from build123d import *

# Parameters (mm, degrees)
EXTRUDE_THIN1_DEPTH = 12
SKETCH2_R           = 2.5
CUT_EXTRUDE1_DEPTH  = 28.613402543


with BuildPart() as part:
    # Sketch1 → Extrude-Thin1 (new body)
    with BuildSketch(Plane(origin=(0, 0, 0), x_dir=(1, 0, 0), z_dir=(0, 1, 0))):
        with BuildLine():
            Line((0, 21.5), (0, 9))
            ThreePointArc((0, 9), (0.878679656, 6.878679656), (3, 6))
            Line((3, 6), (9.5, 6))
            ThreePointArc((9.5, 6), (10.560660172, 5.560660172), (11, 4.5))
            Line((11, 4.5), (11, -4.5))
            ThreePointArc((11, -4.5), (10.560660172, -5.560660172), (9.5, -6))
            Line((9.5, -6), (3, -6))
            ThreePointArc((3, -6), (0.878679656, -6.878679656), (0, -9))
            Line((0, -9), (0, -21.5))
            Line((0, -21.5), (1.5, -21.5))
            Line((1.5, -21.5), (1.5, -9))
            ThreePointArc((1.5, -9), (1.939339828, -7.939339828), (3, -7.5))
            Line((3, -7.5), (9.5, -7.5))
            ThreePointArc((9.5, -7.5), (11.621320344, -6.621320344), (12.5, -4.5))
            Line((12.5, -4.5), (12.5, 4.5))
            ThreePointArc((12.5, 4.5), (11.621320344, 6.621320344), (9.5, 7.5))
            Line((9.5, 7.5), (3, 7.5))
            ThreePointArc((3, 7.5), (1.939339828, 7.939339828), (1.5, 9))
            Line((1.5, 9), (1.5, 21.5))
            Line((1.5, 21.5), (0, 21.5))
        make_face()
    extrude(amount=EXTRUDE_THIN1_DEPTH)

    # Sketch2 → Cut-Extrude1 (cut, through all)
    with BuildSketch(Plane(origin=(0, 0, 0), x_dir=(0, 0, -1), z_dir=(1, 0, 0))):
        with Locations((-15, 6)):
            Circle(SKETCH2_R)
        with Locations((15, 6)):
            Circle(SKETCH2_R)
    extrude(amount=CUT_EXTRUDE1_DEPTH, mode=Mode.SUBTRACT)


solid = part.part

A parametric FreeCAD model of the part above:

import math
import FreeCAD as App
import Part
import Sketcher
Q = App.Units.Quantity

doc = App.newDocument("Part")
body = doc.addObject("PartDesign::Body", "Body")

sketch1 = body.newObject("Sketcher::SketchObject", "Sketch")
sketch1.AttachmentSupport = (doc.getObject("XZ_Plane"), [""])
sketch1.MapMode = "FlatFace"
sketch1.addGeometry([
    Part.LineSegment(App.Vector(0, -21.5, 0), App.Vector(0, -9, 0)),
    Part.ArcOfCircle(Part.Circle(App.Vector(3, -9, 0), App.Vector(0, 0, 1), 3), math.radians(90), math.radians(180)),
    Part.LineSegment(App.Vector(3, -6, 0), App.Vector(9.5, -6, 0)),
    Part.ArcOfCircle(Part.Circle(App.Vector(9.5, -4.5, 0), App.Vector(0, 0, 1), 1.5), math.radians(-90), math.radians(0)),
    Part.LineSegment(App.Vector(11, -4.5, 0), App.Vector(11, 4.5, 0)),
    Part.ArcOfCircle(Part.Circle(App.Vector(9.5, 4.5, 0), App.Vector(0, 0, 1), 1.5), math.radians(0), math.radians(90)),
    Part.LineSegment(App.Vector(9.5, 6, 0), App.Vector(3, 6, 0)),
    Part.ArcOfCircle(Part.Circle(App.Vector(3, 9, 0), App.Vector(0, 0, 1), 3), math.radians(180), math.radians(270)),
    Part.LineSegment(App.Vector(0, 9, 0), App.Vector(0, 21.5, 0)),
    Part.LineSegment(App.Vector(0, 21.5, 0), App.Vector(1.5, 21.5, 0)),
    Part.LineSegment(App.Vector(1.5, 21.5, 0), App.Vector(1.5, 9, 0)),
    Part.ArcOfCircle(Part.Circle(App.Vector(3, 9, 0), App.Vector(0, 0, 1), 1.5), math.radians(180), math.radians(270)),
    Part.LineSegment(App.Vector(3, 7.5, 0), App.Vector(9.5, 7.5, 0)),
    Part.ArcOfCircle(Part.Circle(App.Vector(9.5, 4.5, 0), App.Vector(0, 0, 1), 3), math.radians(0), math.radians(90)),
    Part.LineSegment(App.Vector(12.5, 4.5, 0), App.Vector(12.5, -4.5, 0)),
    Part.ArcOfCircle(Part.Circle(App.Vector(9.5, -4.5, 0), App.Vector(0, 0, 1), 3), math.radians(-90), math.radians(0)),
    Part.LineSegment(App.Vector(9.5, -7.5, 0), App.Vector(3, -7.5, 0)),
    Part.ArcOfCircle(Part.Circle(App.Vector(3, -9, 0), App.Vector(0, 0, 1), 1.5), math.radians(90), math.radians(180)),
    Part.LineSegment(App.Vector(1.5, -9, 0), App.Vector(1.5, -21.5, 0)),
    Part.LineSegment(App.Vector(1.5, -21.5, 0), App.Vector(0, -21.5, 0)),
], False)
sketch1.addConstraint([
    Sketcher.Constraint("Tangent", 0, 2, 1, 2),
    Sketcher.Constraint("Tangent", 1, 1, 2, 1),
    Sketcher.Constraint("Tangent", 2, 2, 3, 1),
    Sketcher.Constraint("Tangent", 3, 2, 4, 1),
    Sketcher.Constraint("Tangent", 4, 2, 5, 1),
    Sketcher.Constraint("Tangent", 5, 2, 6, 1),
    Sketcher.Constraint("Tangent", 6, 2, 7, 2),
    Sketcher.Constraint("Tangent", 7, 1, 8, 1),
    Sketcher.Constraint("Coincident", 8, 2, 9, 1),
    Sketcher.Constraint("Coincident", 9, 2, 10, 1),
    Sketcher.Constraint("Tangent", 10, 2, 11, 1),
    Sketcher.Constraint("Tangent", 11, 2, 12, 1),
    Sketcher.Constraint("Tangent", 12, 2, 13, 2),
    Sketcher.Constraint("Tangent", 13, 1, 14, 1),
    Sketcher.Constraint("Tangent", 14, 2, 15, 2),
    Sketcher.Constraint("Tangent", 15, 1, 16, 1),
    Sketcher.Constraint("Tangent", 16, 2, 17, 1),
    Sketcher.Constraint("Tangent", 17, 2, 18, 1),
    Sketcher.Constraint("Coincident", 18, 2, 19, 1),
    Sketcher.Constraint("Coincident", 19, 2, 0, 1),
    Sketcher.Constraint("Vertical", 0),
    Sketcher.Constraint("Horizontal", 2),
    Sketcher.Constraint("Vertical", 4),
    Sketcher.Constraint("Horizontal", 6),
    Sketcher.Constraint("Vertical", 8),
    Sketcher.Constraint("Horizontal", 9),
    Sketcher.Constraint("Vertical", 10),
    Sketcher.Constraint("Horizontal", 12),
    Sketcher.Constraint("Vertical", 14),
    Sketcher.Constraint("Horizontal", 16),
    Sketcher.Constraint("Vertical", 18),
    Sketcher.Constraint("Horizontal", 19),
    Sketcher.Constraint("Coincident", 11, 3, 7, 3),
    Sketcher.Constraint("Coincident", 13, 3, 5, 3),
    Sketcher.Constraint("Coincident", 15, 3, 3, 3),
    Sketcher.Constraint("Coincident", 17, 3, 1, 3),
    Sketcher.Constraint("Equal", 3, 5),
    Sketcher.Constraint("Equal", 1, 7),
    Sketcher.Constraint("Equal", 5, 11),
    Sketcher.Constraint("Symmetric", 0, 2, 7, 1, -1, 1),
    Sketcher.Constraint("Symmetric", 9, 2, 18, 2, -1),
    Sketcher.Constraint("Radius", 1, Q("3 mm")),
    Sketcher.Constraint("Radius", 3, Q("1.5 mm")),
    Sketcher.Constraint("DistanceY", 4, 1, 4, 2, Q("9 mm")),
    Sketcher.Constraint("DistanceX", 2, 1, 2, 2, Q("6.5 mm")),
    Sketcher.Constraint("DistanceY", 0, 1, 0, 2, Q("12.5 mm")),
])
pad1 = body.newObject("PartDesign::Pad", "Pad")
pad1.Profile = sketch1
pad1.Length = 12
pad1.Reversed = True

sketch2 = body.newObject("Sketcher::SketchObject", "Sketch001")
sketch2.AttachmentSupport = (doc.getObject("YZ_Plane"), [""])
sketch2.MapMode = "FlatFace"
sketch2.addGeometry([
    Part.Circle(App.Vector(6, 15, 0), App.Vector(0, 0, 1), 2.5),
    Part.Circle(App.Vector(6, -15, 0), App.Vector(0, 0, 1), 2.5),
], False)
sketch2.addConstraint([
    Sketcher.Constraint("Equal", 0, 1),
    Sketcher.Constraint("Symmetric", 0, 3, 1, 3, -1),
    Sketcher.Constraint("Diameter", 0, Q("5 mm")),
    Sketcher.Constraint("DistanceX", -1, 1, 0, 3, Q("6 mm")),
    Sketcher.Constraint("DistanceY", -1, 1, 0, 3, Q("15 mm")),
])
pocket1 = body.newObject("PartDesign::Pocket", "Pocket")
pocket1.Profile = sketch2
pocket1.Type = "ThroughAll"
pocket1.Reversed = True

doc.recompute()
